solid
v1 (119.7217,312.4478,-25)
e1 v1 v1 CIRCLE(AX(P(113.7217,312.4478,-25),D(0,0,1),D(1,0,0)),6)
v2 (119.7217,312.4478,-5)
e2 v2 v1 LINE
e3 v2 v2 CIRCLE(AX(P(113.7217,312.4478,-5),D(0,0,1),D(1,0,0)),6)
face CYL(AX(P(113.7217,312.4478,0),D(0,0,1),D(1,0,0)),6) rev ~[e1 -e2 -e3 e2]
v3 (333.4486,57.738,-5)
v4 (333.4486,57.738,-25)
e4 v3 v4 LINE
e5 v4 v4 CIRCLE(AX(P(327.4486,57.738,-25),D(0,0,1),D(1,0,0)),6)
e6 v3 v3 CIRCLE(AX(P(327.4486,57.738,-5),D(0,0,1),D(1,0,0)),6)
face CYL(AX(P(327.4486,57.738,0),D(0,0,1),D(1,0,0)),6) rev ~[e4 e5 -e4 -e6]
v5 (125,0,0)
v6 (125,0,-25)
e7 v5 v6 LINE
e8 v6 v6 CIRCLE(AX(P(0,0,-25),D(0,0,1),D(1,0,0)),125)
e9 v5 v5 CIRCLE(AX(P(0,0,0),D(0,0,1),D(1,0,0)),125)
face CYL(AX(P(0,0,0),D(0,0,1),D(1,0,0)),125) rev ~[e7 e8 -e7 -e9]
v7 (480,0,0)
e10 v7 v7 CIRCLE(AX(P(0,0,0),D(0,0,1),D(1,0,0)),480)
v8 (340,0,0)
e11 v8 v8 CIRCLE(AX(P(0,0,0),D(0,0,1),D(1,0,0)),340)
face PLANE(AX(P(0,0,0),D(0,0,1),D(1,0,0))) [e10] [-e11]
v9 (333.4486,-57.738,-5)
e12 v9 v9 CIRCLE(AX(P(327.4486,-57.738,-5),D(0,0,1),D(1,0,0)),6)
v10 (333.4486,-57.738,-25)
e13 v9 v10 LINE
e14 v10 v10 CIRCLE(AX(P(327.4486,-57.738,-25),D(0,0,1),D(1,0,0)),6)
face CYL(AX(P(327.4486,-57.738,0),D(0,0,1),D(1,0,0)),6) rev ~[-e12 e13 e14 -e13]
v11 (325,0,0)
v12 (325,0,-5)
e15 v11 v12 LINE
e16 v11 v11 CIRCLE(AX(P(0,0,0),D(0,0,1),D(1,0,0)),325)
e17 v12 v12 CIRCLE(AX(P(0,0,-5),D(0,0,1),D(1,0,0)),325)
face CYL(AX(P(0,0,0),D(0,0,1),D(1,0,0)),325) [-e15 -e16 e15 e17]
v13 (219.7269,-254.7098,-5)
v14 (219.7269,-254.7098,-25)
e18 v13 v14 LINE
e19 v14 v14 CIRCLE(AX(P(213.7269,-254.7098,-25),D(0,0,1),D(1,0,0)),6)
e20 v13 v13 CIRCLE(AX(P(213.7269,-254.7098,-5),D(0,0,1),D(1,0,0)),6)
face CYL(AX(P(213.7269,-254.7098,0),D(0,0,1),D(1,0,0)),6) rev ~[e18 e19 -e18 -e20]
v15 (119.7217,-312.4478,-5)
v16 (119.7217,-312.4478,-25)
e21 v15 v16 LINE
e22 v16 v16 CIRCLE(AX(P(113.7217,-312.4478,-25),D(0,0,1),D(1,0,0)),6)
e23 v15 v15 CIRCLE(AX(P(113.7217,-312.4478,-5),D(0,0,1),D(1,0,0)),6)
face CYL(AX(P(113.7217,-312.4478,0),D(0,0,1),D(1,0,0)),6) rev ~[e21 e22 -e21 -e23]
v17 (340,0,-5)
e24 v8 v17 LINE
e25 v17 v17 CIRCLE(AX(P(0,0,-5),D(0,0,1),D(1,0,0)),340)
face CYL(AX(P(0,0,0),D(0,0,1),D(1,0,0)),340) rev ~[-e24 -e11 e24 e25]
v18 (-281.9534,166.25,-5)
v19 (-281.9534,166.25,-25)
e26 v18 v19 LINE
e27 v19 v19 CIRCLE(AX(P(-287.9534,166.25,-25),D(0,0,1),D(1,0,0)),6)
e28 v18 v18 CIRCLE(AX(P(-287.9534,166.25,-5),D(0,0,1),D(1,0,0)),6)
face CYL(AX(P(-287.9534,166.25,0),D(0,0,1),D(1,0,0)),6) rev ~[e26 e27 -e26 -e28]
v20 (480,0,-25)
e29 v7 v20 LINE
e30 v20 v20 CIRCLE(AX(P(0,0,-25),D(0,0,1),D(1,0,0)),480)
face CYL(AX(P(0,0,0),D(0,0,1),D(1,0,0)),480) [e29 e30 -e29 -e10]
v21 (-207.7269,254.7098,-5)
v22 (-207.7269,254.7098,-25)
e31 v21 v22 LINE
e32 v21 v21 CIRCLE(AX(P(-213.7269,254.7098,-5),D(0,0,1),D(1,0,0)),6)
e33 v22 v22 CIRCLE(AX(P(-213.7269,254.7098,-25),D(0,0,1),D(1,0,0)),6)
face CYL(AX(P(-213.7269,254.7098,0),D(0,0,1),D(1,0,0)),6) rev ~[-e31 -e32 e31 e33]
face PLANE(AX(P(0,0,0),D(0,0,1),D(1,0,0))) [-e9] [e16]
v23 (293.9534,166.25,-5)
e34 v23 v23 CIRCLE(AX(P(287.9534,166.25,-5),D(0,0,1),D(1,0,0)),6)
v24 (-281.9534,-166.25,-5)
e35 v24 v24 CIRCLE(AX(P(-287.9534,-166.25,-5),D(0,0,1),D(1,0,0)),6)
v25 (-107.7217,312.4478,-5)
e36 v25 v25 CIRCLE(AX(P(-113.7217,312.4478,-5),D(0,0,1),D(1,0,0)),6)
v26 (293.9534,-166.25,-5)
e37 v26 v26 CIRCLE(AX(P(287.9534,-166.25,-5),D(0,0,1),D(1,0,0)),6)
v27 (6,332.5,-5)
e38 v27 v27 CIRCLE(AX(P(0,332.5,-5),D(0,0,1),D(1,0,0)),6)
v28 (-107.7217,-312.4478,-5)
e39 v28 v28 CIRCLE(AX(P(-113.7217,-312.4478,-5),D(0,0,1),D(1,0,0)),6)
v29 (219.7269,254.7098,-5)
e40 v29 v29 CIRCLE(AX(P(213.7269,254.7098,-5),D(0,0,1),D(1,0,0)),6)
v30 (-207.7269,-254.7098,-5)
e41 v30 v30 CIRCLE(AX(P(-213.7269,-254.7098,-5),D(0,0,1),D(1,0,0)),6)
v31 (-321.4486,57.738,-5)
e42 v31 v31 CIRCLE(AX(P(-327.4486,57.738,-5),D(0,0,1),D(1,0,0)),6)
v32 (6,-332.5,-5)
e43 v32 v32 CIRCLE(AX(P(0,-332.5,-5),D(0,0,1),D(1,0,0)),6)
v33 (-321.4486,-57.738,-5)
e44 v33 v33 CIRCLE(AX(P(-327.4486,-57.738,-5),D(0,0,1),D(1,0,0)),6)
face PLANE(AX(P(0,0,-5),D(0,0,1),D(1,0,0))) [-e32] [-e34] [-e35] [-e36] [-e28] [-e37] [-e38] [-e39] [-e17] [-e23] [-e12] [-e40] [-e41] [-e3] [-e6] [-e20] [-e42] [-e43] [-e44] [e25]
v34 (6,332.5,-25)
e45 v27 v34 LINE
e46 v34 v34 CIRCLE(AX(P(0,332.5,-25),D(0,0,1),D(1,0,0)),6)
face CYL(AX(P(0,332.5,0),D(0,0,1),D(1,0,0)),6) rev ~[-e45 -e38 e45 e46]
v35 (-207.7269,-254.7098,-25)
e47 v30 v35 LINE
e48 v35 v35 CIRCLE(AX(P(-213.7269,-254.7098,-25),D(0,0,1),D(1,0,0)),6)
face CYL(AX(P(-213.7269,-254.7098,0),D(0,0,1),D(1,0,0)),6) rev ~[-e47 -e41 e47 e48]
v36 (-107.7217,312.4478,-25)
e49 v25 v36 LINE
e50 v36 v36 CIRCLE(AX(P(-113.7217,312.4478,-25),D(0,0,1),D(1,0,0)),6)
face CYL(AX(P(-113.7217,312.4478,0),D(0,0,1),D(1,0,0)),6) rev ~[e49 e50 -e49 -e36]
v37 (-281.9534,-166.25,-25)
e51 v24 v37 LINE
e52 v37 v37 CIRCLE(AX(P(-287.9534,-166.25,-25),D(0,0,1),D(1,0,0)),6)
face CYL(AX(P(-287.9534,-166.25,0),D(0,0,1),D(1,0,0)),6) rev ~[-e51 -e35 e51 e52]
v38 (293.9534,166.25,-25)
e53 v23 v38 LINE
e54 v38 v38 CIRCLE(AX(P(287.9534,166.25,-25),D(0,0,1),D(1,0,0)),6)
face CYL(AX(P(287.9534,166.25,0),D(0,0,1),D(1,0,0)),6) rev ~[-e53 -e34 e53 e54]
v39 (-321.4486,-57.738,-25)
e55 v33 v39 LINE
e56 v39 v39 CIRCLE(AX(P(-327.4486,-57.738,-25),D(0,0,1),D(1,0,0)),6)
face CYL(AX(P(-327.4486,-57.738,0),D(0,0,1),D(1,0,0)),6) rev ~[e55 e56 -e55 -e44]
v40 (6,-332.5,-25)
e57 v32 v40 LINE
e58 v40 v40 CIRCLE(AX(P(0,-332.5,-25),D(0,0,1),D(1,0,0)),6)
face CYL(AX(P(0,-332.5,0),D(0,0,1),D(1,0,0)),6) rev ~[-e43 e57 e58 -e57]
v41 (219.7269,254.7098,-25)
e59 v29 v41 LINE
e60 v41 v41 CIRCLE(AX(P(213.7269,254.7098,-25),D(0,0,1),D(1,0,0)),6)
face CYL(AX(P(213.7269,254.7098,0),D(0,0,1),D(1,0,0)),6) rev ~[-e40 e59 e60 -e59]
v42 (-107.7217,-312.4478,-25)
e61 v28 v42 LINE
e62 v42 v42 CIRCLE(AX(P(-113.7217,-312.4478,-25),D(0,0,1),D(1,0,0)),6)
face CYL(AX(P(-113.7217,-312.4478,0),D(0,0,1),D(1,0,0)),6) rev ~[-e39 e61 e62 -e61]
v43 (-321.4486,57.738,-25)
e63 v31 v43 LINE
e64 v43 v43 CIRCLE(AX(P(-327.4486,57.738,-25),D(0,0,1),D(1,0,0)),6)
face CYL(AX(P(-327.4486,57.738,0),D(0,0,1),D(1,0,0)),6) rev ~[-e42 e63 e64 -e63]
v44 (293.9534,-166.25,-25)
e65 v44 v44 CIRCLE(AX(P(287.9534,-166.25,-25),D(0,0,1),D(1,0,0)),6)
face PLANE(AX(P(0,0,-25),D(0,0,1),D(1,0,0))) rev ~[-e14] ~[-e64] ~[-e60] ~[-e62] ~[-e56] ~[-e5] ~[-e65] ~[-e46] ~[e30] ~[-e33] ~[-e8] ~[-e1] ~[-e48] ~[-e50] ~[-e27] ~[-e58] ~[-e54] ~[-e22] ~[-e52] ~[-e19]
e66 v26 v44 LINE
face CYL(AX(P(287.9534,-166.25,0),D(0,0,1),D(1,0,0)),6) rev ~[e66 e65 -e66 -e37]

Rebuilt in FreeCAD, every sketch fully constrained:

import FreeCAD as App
import Part
import Sketcher
from FreeCAD import Vector

doc = App.newDocument("Part")
params = doc.addObject("Spreadsheet::Sheet", "Params")
for row, (alias, value) in enumerate([
    ("sketch1_diameter", "960 mm"),
    ("sketch1_diameter2", "250 mm"),
    ("pad1_length", "25 mm"),
    ("sketch2_diameter", "680 mm"),
    ("sketch2_diameter2", "650 mm"),
    ("pocket1_length", "5 mm"),
    ("sketch3_diameter", "12 mm"),
    ("pocket2_length", "25 mm"),
], start=1):
    params.set(f"A{row}", alias)
    params.set(f"B{row}", "=" + value)
    params.setAlias(f"B{row}", alias)

body = doc.addObject("PartDesign::Body", "Body")

# Sketch on XY plane
sketch1 = body.newObject("Sketcher::SketchObject", "Sketch")
sketch1.AttachmentSupport = (doc.getObject("XY_Plane"), [""])
sketch1.MapMode = "FlatFace"
sketch1.addGeometry([
    Part.Circle(Vector(0, 0, 0), Vector(0, 0, 1), 480),
    Part.Circle(Vector(0, 0, 0), Vector(0, 0, 1), 125),
], False)
sketch1.addConstraint([
    Sketcher.Constraint("Coincident", 0, 3, -1, 1),
    Sketcher.Constraint("Coincident", 1, 3, -1, 1),
    Sketcher.Constraint("Diameter", 0, 960.0),
    Sketcher.Constraint("Diameter", 1, 250.0),
])
sketch1.setExpression("Constraints[2]", "Params.sketch1_diameter")
sketch1.setExpression("Constraints[3]", "Params.sketch1_diameter2")
pad1 = body.newObject("PartDesign::Pad", "Pad")
pad1.Profile = sketch1
pad1.setExpression("Length", "Params.pad1_length")
pad1.Reversed = True

# Sketch on XY plane
sketch2 = body.newObject("Sketcher::SketchObject", "Sketch001")
sketch2.AttachmentSupport = (doc.getObject("XY_Plane"), [""])
sketch2.MapMode = "FlatFace"
sketch2.addGeometry([
    Part.Circle(Vector(0, 0, 0), Vector(0, 0, 1), 340),
    Part.Circle(Vector(0, 0, 0), Vector(0, 0, 1), 325),
], False)
sketch2.addConstraint([
    Sketcher.Constraint("Coincident", 0, 3, -1, 1),
    Sketcher.Constraint("Coincident", 1, 3, -1, 1),
    Sketcher.Constraint("Diameter", 0, 680.0),
    Sketcher.Constraint("Diameter", 1, 650.0),
])
sketch2.setExpression("Constraints[2]", "Params.sketch2_diameter")
sketch2.setExpression("Constraints[3]", "Params.sketch2_diameter2")
pocket1 = body.newObject("PartDesign::Pocket", "Pocket")
pocket1.Profile = sketch2
pocket1.setExpression("Length", "Params.pocket1_length")

# Sketch on XY plane
sketch3 = body.newObject("Sketcher::SketchObject", "Sketch002")
sketch3.AttachmentSupport = (doc.getObject("XY_Plane"), [""])
sketch3.MapMode = "FlatFace"
sketch3.addGeometry([
    Part.Circle(Vector(0, 332, 0), Vector(0, 0, 1), 6),  # 0
    Part.Circle(Vector(-114, 312, 0), Vector(0, 0, 1), 6),  # 1
    Part.Circle(Vector(-214, 255, 0), Vector(0, 0, 1), 6),  # 2
    Part.Circle(Vector(-288, 166, 0), Vector(0, 0, 1), 6),  # 3
    Part.Circle(Vector(-327, 58, 0), Vector(0, 0, 1), 6),  # 4
    Part.Circle(Vector(-327, -58, 0), Vector(0, 0, 1), 6),  # 5
    Part.Circle(Vector(-288, -166, 0), Vector(0, 0, 1), 6),  # 6
    Part.Circle(Vector(-214, -255, 0), Vector(0, 0, 1), 6),  # 7
    Part.Circle(Vector(-114, -312, 0), Vector(0, 0, 1), 6),  # 8
    Part.Circle(Vector(0, -332, 0), Vector(0, 0, 1), 6),  # 9
    Part.Circle(Vector(114, -312, 0), Vector(0, 0, 1), 6),  # 10
    Part.Circle(Vector(214, -255, 0), Vector(0, 0, 1), 6),  # 11
    Part.Circle(Vector(288, -166, 0), Vector(0, 0, 1), 6),  # 12
    Part.Circle(Vector(327, -58, 0), Vector(0, 0, 1), 6),  # 13
    Part.Circle(Vector(327, 58, 0), Vector(0, 0, 1), 6),  # 14
    Part.Circle(Vector(288, 166, 0), Vector(0, 0, 1), 6),  # 15
    Part.Circle(Vector(214, 255, 0), Vector(0, 0, 1), 6),  # 16
    Part.Circle(Vector(114, 312, 0), Vector(0, 0, 1), 6),  # 17
], False)
sketch3.addConstraint([
    Sketcher.Constraint("Equal", 0, 1),
    Sketcher.Constraint("Equal", 1, 2),
    Sketcher.Constraint("Equal", 2, 3),
    Sketcher.Constraint("Equal", 3, 4),
    Sketcher.Constraint("Equal", 4, 5),
    Sketcher.Constraint("Equal", 5, 6),
    Sketcher.Constraint("Equal", 6, 7),
    Sketcher.Constraint("Equal", 7, 8),
    Sketcher.Constraint("Equal", 8, 9),
    Sketcher.Constraint("Equal", 9, 10),
    Sketcher.Constraint("Equal", 10, 11),
    Sketcher.Constraint("Equal", 11, 12),
    Sketcher.Constraint("Equal", 12, 13),
    Sketcher.Constraint("Equal", 13, 14),
    Sketcher.Constraint("Equal", 14, 15),
    Sketcher.Constraint("Equal", 15, 16),
    Sketcher.Constraint("Equal", 16, 17),
    Sketcher.Constraint("Symmetric", 0, 3, 9, 3, -1, 1),
    Sketcher.Constraint("Symmetric", 1, 3, 10, 3, -1, 1),
    Sketcher.Constraint("Symmetric", 2, 3, 11, 3, -1, 1),
    Sketcher.Constraint("Symmetric", 3, 3, 12, 3, -1, 1),
    Sketcher.Constraint("Symmetric", 4, 3, 13, 3, -1, 1),
    Sketcher.Constraint("Symmetric", 5, 3, 14, 3, -1, 1),
    Sketcher.Constraint("Symmetric", 6, 3, 15, 3, -1, 1),
    Sketcher.Constraint("Symmetric", 7, 3, 16, 3, -1, 1),
    Sketcher.Constraint("Symmetric", 8, 3, 17, 3, -1, 1),
    Sketcher.Constraint("Symmetric", 8, 3, 10, 3, -2),
    Sketcher.Constraint("Symmetric", 7, 3, 11, 3, -2),
    Sketcher.Constraint("Symmetric", 6, 3, 12, 3, -2),
    Sketcher.Constraint("Symmetric", 5, 3, 13, 3, -2),
    Sketcher.Constraint("PointOnObject", 0, 3, -2),
    Sketcher.Constraint("Diameter", 0, 12.0),
    Sketcher.Constraint("DistanceY", -1, 1, 0, 3, 332.5),
    Sketcher.Constraint("DistanceY", 6, 3, 3, 3, 332.5),
    Sketcher.Constraint("DistanceX", 2, 3, -1, 1, 213.727),
    Sketcher.Constraint("DistanceY", -1, 1, 4, 3, 57.738),
    Sketcher.Constraint("DistanceY", 2, 3, 1, 3, 57.738),
    Sketcher.Constraint("DistanceX", 4, 3, 1, 3, 213.727),
    Sketcher.Constraint("DistanceX", 6, 3, 10, 3, 401.675),
    Sketcher.Constraint("DistanceX", 1, 3, -1, 1, 113.7217),
    Sketcher.Constraint("DistanceY", -1, 1, 1, 3, 312.4478),
])
sketch3.setExpression("Constraints[31]", "Params.sketch3_diameter")
pocket2 = body.newObject("PartDesign::Pocket", "Pocket001")
pocket2.Profile = sketch3
pocket2.setExpression("Length", "Params.pocket2_length")

doc.recompute()
